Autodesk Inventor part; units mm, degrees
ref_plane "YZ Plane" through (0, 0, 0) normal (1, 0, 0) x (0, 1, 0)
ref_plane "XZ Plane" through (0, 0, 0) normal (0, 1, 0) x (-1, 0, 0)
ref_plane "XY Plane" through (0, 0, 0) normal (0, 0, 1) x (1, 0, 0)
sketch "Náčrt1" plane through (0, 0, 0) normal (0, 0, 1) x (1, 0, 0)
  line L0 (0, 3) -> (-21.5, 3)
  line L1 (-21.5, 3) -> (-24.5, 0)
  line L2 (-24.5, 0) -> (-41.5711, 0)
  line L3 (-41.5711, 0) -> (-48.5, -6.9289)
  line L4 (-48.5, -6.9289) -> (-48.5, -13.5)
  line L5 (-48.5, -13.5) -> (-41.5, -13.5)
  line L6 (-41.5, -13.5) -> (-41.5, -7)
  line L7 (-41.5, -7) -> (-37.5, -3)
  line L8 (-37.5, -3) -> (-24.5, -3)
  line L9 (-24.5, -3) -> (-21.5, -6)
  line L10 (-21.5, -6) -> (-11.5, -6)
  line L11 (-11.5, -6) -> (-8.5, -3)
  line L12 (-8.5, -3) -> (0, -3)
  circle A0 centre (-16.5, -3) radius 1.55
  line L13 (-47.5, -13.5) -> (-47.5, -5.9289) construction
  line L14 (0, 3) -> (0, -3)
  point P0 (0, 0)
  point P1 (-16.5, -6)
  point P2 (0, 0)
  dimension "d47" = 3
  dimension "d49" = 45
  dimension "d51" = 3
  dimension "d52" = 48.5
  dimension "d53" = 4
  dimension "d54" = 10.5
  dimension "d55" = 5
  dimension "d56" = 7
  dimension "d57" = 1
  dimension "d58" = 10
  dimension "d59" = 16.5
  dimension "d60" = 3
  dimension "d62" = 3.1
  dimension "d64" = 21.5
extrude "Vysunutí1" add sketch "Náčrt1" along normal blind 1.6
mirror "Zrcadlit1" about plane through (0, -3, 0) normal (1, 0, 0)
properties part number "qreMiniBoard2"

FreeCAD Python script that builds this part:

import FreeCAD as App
import Part
import Sketcher

doc = App.newDocument("Part")
params = doc.addObject("Spreadsheet::Sheet", "Params")
for row, (alias, value) in enumerate([
    ("sketch1_diameter", "3.1 mm"),
    ("sketch1_width", "7 mm"),
    ("sketch1_width2", "10 mm"),
    ("sketch1_width3", "21.5 mm"),
    ("pad1_length", "1.6 mm"),
], start=1):
    params.set(f"A{row}", alias)
    params.set(f"B{row}", "=" + value)
    params.setAlias(f"B{row}", alias)

body = doc.addObject("PartDesign::Body", "Body")

# Sketch on XY plane
sketch1 = body.newObject("Sketcher::SketchObject", "Sketch")
sketch1.AttachmentSupport = (doc.getObject("XY_Plane"), [""])
sketch1.MapMode = "FlatFace"
sketch1.addGeometry(Part.LineSegment(App.Vector(0, -3, 0), App.Vector(0, 3, 0)), False)
sketch1.addGeometry(Part.LineSegment(App.Vector(0, 3, 0), App.Vector(-21.5, 3, 0)), False)
sketch1.addGeometry(Part.LineSegment(App.Vector(-21.5, 3, 0), App.Vector(-24.5, 0, 0)), False)
sketch1.addGeometry(Part.LineSegment(App.Vector(-24.5, 0, 0), App.Vector(-41.5711, 0, 0)), False)
sketch1.addGeometry(Part.LineSegment(App.Vector(-41.5711, 0, 0), App.Vector(-48.5, -6.9289, 0)), False)
sketch1.addGeometry(Part.LineSegment(App.Vector(-48.5, -6.9289, 0), App.Vector(-48.5, -13.5, 0)), False)
sketch1.addGeometry(Part.LineSegment(App.Vector(-48.5, -13.5, 0), App.Vector(-41.5, -13.5, 0)), False)
sketch1.addGeometry(Part.LineSegment(App.Vector(-41.5, -13.5, 0), App.Vector(-41.5, -7, 0)), False)
sketch1.addGeometry(Part.LineSegment(App.Vector(-41.5, -7, 0), App.Vector(-37.5, -3, 0)), False)
sketch1.addGeometry(Part.LineSegment(App.Vector(-37.5, -3, 0), App.Vector(-24.5, -3, 0)), False)
sketch1.addGeometry(Part.LineSegment(App.Vector(-24.5, -3, 0), App.Vector(-21.5, -6, 0)), False)
sketch1.addGeometry(Part.LineSegment(App.Vector(-21.5, -6, 0), App.Vector(-11.5, -6, 0)), False)
sketch1.addGeometry(Part.LineSegment(App.Vector(-11.5, -6, 0), App.Vector(-8.5, -3, 0)), False)
sketch1.addGeometry(Part.LineSegment(App.Vector(-8.5, -3, 0), App.Vector(0, -3, 0)), False)
sketch1.addGeometry(Part.Circle(App.Vector(-16.5, -3, 0), App.Vector(0, 0, 1), 1.55), False)
sketch1.addConstraint(Sketcher.Constraint("Coincident", 0, 2, 1, 1))
sketch1.addConstraint(Sketcher.Constraint("Coincident", 1, 2, 2, 1))
sketch1.addConstraint(Sketcher.Constraint("Coincident", 2, 2, 3, 1))
sketch1.addConstraint(Sketcher.Constraint("Coincident", 3, 2, 4, 1))
sketch1.addConstraint(Sketcher.Constraint("Coincident", 4, 2, 5, 1))
sketch1.addConstraint(Sketcher.Constraint("Coincident", 5, 2, 6, 1))
sketch1.addConstraint(Sketcher.Constraint("Coincident", 6, 2, 7, 1))
sketch1.addConstraint(Sketcher.Constraint("Coincident", 7, 2, 8, 1))
sketch1.addConstraint(Sketcher.Constraint("Coincident", 8, 2, 9, 1))
sketch1.addConstraint(Sketcher.Constraint("Coincident", 9, 2, 10, 1))
sketch1.addConstraint(Sketcher.Constraint("Coincident", 10, 2, 11, 1))
sketch1.addConstraint(Sketcher.Constraint("Coincident", 11, 2, 12, 1))
sketch1.addConstraint(Sketcher.Constraint("Coincident", 12, 2, 13, 1))
sketch1.addConstraint(Sketcher.Constraint("Coincident", 13, 2, 0, 1))
sketch1.addConstraint(Sketcher.Constraint("Vertical", 0))
sketch1.addConstraint(Sketcher.Constraint("Horizontal", 1))
sketch1.addConstraint(Sketcher.Constraint("Horizontal", 3))
sketch1.addConstraint(Sketcher.Constraint("Vertical", 5))
sketch1.addConstraint(Sketcher.Constraint("Horizontal", 6))
sketch1.addConstraint(Sketcher.Constraint("Vertical", 7))
sketch1.addConstraint(Sketcher.Constraint("Horizontal", 9))
sketch1.addConstraint(Sketcher.Constraint("Horizontal", 11))
sketch1.addConstraint(Sketcher.Constraint("Horizontal", 13))
sketch1.addConstraint(Sketcher.Constraint("Symmetric", 0, 2, 13, 2, -1, 1))
sketch1.addConstraint(Sketcher.Constraint("PointOnObject", 2, 2, -1))
sketch1.addConstraint(Sketcher.Constraint("Parallel", 2, 4))
sketch1.addConstraint(Sketcher.Constraint("Parallel", 4, 8))
sketch1.addConstraint(Sketcher.Constraint("Perpendicular", 8, 10))
sketch1.addConstraint(Sketcher.Constraint("Perpendicular", 10, 12))
sketch1.addConstraint(Sketcher.Constraint("Horizontal", 14, 3, 8, 2))
sketch1.addConstraint(Sketcher.Constraint("Horizontal", 9, 2, 12, 2))
sketch1.addConstraint(Sketcher.Constraint("Vertical", 2, 2, 9, 2))
sketch1.addConstraint(Sketcher.Constraint("Vertical", 1, 2, 10, 2))
sketch1.addConstraint(Sketcher.Constraint("Equal", 2, 10))
sketch1.addConstraint(Sketcher.Constraint("Diameter", 14, 3.1))
sketch1.addConstraint(Sketcher.Constraint("DistanceX", 6, 1, 6, 2, 7.0))
sketch1.addConstraint(Sketcher.Constraint("DistanceX", 11, 1, 11, 2, 10.0))
sketch1.addConstraint(Sketcher.Constraint("DistanceX", 1, 2, 1, 1, 21.5))
sketch1.addConstraint(Sketcher.Constraint("DistanceY", 14, 3, -1, 1, 3.0))
sketch1.addConstraint(Sketcher.Constraint("DistanceY", 7, 2, -1, 1, 7.0))
sketch1.addConstraint(Sketcher.Constraint("DistanceX", 1, 2, 14, 3, 5.0))
sketch1.addConstraint(Sketcher.Constraint("DistanceX", 4, 2, -1, 1, 48.5))
sketch1.addConstraint(Sketcher.Constraint("DistanceY", 5, 2, 1, 2, 16.5))
sketch1.addConstraint(Sketcher.Constraint("DistanceX", 3, 2, 3, 1, 17.071))
sketch1.setExpression("Constraints[34]", "Params.sketch1_diameter")
sketch1.setExpression("Constraints[35]", "Params.sketch1_width")
sketch1.setExpression("Constraints[36]", "Params.sketch1_width2")
sketch1.setExpression("Constraints[37]", "Params.sketch1_width3")
pad1 = body.newObject("PartDesign::Pad", "Pad")
pad1.Profile = sketch1
pad1.setExpression("Length", "Params.pad1_length")
doc.recompute()

mirrored = body.newObject("PartDesign::Mirrored", "Mirrored")
mirrored.TransformMode = "Transform body"
mirrored.MirrorPlane = (doc.getObject("YZ_Plane"), [""])
body.Tip = mirrored

doc.recompute()
